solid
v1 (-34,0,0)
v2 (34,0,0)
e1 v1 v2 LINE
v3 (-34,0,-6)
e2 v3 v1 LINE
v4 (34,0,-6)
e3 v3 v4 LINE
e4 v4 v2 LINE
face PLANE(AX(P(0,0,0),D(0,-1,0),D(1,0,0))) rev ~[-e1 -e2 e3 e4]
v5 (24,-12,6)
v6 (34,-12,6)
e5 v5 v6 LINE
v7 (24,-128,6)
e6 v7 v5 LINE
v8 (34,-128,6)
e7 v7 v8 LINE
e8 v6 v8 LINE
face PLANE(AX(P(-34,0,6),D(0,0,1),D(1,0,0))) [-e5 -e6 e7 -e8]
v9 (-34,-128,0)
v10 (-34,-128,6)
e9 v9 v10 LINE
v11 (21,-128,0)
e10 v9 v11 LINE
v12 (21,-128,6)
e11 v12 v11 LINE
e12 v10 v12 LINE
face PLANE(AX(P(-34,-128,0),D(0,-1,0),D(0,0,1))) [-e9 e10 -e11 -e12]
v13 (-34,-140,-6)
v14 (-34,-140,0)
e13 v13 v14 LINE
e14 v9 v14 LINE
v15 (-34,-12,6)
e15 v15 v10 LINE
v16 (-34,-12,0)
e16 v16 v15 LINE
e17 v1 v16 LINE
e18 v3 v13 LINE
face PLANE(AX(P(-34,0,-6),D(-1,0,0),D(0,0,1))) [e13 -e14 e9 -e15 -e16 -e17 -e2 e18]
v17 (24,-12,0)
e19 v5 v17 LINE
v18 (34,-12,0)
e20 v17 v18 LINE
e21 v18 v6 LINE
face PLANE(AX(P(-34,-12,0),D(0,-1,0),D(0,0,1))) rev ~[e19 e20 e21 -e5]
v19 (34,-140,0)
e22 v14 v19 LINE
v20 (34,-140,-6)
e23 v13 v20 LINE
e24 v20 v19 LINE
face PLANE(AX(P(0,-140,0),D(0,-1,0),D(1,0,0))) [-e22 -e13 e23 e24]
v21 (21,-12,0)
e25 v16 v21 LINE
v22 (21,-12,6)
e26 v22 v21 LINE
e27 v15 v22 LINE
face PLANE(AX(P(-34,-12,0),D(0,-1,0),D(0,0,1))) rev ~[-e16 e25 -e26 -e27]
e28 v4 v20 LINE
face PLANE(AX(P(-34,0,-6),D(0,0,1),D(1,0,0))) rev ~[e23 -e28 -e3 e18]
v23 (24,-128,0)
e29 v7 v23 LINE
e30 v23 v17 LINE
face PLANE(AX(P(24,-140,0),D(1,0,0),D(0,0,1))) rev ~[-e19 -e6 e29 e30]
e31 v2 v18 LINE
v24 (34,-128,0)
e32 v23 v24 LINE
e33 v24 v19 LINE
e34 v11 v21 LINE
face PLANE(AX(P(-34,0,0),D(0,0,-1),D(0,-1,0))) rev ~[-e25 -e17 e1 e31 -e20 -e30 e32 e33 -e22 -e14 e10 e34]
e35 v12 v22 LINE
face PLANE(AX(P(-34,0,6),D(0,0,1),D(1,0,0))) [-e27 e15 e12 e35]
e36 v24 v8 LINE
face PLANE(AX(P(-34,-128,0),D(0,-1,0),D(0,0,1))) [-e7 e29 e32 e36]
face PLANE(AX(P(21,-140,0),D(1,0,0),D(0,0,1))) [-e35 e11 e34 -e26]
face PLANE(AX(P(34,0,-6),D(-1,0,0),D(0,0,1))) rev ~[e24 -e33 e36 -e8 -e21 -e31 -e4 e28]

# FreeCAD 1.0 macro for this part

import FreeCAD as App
import Part
import Sketcher

V = App.Vector


def add_polygon(sketch, points):
    """Adds a closed chain of lines whose ends are joined by coincident constraints."""
    first, n = sketch.GeometryCount, len(points)
    for a, b in zip(points, points[1:] + points[:1]):
        sketch.addGeometry(Part.LineSegment(App.Vector(*a, 0), App.Vector(*b, 0)), False)
    for i in range(n):
        sketch.addConstraint(Sketcher.Constraint("Coincident", first + i, 2, first + (i + 1) % n, 1))

doc = App.newDocument("Part")
body = doc.addObject("PartDesign::Body", "Body")

sketch1 = body.newObject("Sketcher::SketchObject", "Sketch")
sketch1.AttachmentSupport = (doc.getObject("XZ_Plane"), [""])
sketch1.MapMode = "FlatFace"
add_polygon(sketch1, [(-34, 6), (-34, -6), (34, -6), (34, 6)])
sketch1.addConstraint([
    Sketcher.Constraint("Vertical", 0),
    Sketcher.Constraint("Horizontal", 1),
    Sketcher.Constraint("Vertical", 2),
    Sketcher.Constraint("Horizontal", 3),
    Sketcher.Constraint("Symmetric", 0, 2, 2, 2, -1, 1),
    Sketcher.Constraint("DistanceX", 1, 1, 1, 2, 68.0),
    Sketcher.Constraint("DistanceY", 0, 2, 0, 1, 12.0),
])
pad1 = body.newObject("PartDesign::Pad", "Pad")
pad1.Profile = sketch1
pad1.Length = 140

sketch2 = body.newObject("Sketcher::SketchObject", "Sketch001")
sketch2.AttachmentSupport = (doc.getObject("XZ_Plane"), [""])
sketch2.MapMode = "FlatFace"
sketch2.AttachmentOffset = App.Placement(V(0, 0, 140), App.Rotation())
add_polygon(sketch2, [(21, 6), (21, 0), (24, 0), (24, 6)])
sketch2.addConstraint([
    Sketcher.Constraint("Vertical", 0),
    Sketcher.Constraint("Horizontal", 1),
    Sketcher.Constraint("Vertical", 2),
    Sketcher.Constraint("Horizontal", 3),
    Sketcher.Constraint("PointOnObject", 0, 2, -1),
    Sketcher.Constraint("DistanceX", 1, 1, 1, 2, 3.0),
    Sketcher.Constraint("DistanceY", 0, 2, 0, 1, 6.0),
    Sketcher.Constraint("DistanceX", -1, 1, 0, 2, 21.0),
])
pocket1 = body.newObject("PartDesign::Pocket", "Pocket")
pocket1.Profile = sketch2
pocket1.Length = 140

sketch3 = body.newObject("Sketcher::SketchObject", "Sketch002")
sketch3.AttachmentSupport = (doc.getObject("YZ_Plane"), [""])
sketch3.MapMode = "FlatFace"
sketch3.AttachmentOffset = App.Placement(V(0, 0, -34), App.Rotation())
add_polygon(sketch3, [(0, 6), (0, 0), (-12, 0), (-12, 6)])
add_polygon(sketch3, [(-128, 6), (-128, 0), (-140, 0), (-140, 6)])
sketch3.addConstraint([
    Sketcher.Constraint("Vertical", 0),
    Sketcher.Constraint("Horizontal", 1),
    Sketcher.Constraint("Vertical", 2),
    Sketcher.Constraint("Horizontal", 3),
    Sketcher.Constraint("Vertical", 4),
    Sketcher.Constraint("Horizontal", 5),
    Sketcher.Constraint("Vertical", 6),
    Sketcher.Constraint("Horizontal", 7),
    Sketcher.Constraint("Coincident", 0, 2, -1, 1),
    Sketcher.Constraint("PointOnObject", 4, 2, -1),
    Sketcher.Constraint("Horizontal", 3, 2, 6, 2),
    Sketcher.Constraint("Equal", 3, 5),
    Sketcher.Constraint("DistanceX", 1, 2, 1, 1, 12.0),
    Sketcher.Constraint("DistanceY", 0, 2, 0, 1, 6.0),
    Sketcher.Constraint("DistanceX", 4, 2, -1, 1, 128.0),
])
pocket2 = body.newObject("PartDesign::Pocket", "Pocket001")
pocket2.Profile = sketch3
pocket2.Length = 70
pocket2.Reversed = True

doc.recompute()
